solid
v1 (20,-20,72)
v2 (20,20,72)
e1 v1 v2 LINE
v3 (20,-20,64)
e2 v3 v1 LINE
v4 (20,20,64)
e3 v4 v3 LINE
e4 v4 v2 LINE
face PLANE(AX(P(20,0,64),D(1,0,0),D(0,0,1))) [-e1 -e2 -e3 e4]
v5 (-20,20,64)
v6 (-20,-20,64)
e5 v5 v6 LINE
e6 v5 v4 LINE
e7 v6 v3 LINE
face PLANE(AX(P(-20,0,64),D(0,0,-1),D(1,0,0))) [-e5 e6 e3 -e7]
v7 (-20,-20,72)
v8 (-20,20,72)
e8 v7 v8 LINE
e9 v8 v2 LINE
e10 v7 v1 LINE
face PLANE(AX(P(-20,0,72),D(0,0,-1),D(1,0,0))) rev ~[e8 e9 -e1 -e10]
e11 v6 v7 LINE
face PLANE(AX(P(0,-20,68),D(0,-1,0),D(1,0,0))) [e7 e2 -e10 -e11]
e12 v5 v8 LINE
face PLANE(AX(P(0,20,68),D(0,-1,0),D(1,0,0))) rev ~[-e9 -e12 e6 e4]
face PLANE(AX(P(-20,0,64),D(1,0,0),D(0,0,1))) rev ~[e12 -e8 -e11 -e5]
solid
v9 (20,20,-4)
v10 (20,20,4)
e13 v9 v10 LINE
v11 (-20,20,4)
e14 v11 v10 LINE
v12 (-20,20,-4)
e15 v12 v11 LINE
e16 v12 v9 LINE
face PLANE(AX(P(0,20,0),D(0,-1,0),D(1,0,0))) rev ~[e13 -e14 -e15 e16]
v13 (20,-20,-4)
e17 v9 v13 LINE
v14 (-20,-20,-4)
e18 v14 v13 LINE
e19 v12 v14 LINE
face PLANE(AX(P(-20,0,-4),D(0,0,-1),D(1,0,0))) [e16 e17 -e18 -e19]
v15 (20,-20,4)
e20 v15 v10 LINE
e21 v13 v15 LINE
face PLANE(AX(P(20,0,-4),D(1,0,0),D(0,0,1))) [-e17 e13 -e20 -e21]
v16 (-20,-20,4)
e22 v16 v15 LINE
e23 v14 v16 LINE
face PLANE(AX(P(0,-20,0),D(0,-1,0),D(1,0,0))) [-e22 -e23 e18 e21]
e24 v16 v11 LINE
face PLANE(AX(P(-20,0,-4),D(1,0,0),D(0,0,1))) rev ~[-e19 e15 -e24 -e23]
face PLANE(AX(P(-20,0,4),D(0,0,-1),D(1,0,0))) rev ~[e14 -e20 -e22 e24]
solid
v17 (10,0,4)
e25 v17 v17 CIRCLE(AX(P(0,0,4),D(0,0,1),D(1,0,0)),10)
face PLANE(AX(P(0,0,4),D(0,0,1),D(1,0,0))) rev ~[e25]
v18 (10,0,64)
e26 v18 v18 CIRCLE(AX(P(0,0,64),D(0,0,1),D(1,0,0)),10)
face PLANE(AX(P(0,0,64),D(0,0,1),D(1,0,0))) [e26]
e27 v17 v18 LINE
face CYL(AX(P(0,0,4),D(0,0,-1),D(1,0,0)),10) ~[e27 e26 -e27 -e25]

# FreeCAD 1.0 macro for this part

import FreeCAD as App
import Part
import Sketcher
Q = App.Units.Quantity

doc = App.newDocument("Part")
params = doc.addObject("Spreadsheet::Sheet", "Params")
for row, (alias, value) in enumerate([
    ("sketch1_width", "40 mm"),
    ("sketch1_height", "8 mm"),
    ("pad1_length", "40 mm"),
    ("sketch2_width", "40 mm"),
    ("sketch2_height", "8 mm"),
    ("pad2_length", "40 mm"),
    ("sketch3_diameter", "20 mm"),
    ("pad3_length", "60 mm"),
], start=1):
    params.set(f"A{row}", alias)
    params.set(f"B{row}", "=" + value)
    params.setAlias(f"B{row}", alias)

body = doc.addObject("PartDesign::Body", "Body")

sketch1 = body.newObject("Sketcher::SketchObject", "Sketch")
sketch1.AttachmentSupport = (doc.getObject("XZ_Plane"), [""])
sketch1.MapMode = "FlatFace"
sketch1.addGeometry(Part.LineSegment(App.Vector(-20, 4, 0), App.Vector(-20, -4, 0)), False)
sketch1.addGeometry(Part.LineSegment(App.Vector(-20, -4, 0), App.Vector(20, -4, 0)), False)
sketch1.addGeometry(Part.LineSegment(App.Vector(20, -4, 0), App.Vector(20, 4, 0)), False)
sketch1.addGeometry(Part.LineSegment(App.Vector(20, 4, 0), App.Vector(-20, 4, 0)), False)
sketch1.addConstraint(Sketcher.Constraint("Coincident", 0, 2, 1, 1))
sketch1.addConstraint(Sketcher.Constraint("Coincident", 1, 2, 2, 1))
sketch1.addConstraint(Sketcher.Constraint("Coincident", 2, 2, 3, 1))
sketch1.addConstraint(Sketcher.Constraint("Coincident", 3, 2, 0, 1))
sketch1.addConstraint(Sketcher.Constraint("Vertical", 0))
sketch1.addConstraint(Sketcher.Constraint("Horizontal", 1))
sketch1.addConstraint(Sketcher.Constraint("Vertical", 2))
sketch1.addConstraint(Sketcher.Constraint("Horizontal", 3))
sketch1.addConstraint(Sketcher.Constraint("Symmetric", 0, 2, 2, 2, -1, 1))
sketch1.addConstraint(Sketcher.Constraint("DistanceX", 1, 1, 1, 2, Q("40 mm")))
sketch1.addConstraint(Sketcher.Constraint("DistanceY", 0, 2, 0, 1, Q("8 mm")))
sketch1.setExpression("Constraints[9]", "Params.sketch1_width")
sketch1.setExpression("Constraints[10]", "Params.sketch1_height")
pad1 = body.newObject("PartDesign::Pad", "Pad")
pad1.Profile = sketch1
pad1.setExpression("Length", "Params.pad1_length")
pad1.Midplane = True
body2 = doc.addObject("PartDesign::Body", "Body001")

sketch2 = body2.newObject("Sketcher::SketchObject", "Sketch001")
sketch2.AttachmentSupport = (doc.getObject("XZ_Plane001"), [""])
sketch2.MapMode = "FlatFace"
sketch2.addGeometry(Part.LineSegment(App.Vector(-20, 72, 0), App.Vector(-20, 64, 0)), False)
sketch2.addGeometry(Part.LineSegment(App.Vector(-20, 64, 0), App.Vector(20, 64, 0)), False)
sketch2.addGeometry(Part.LineSegment(App.Vector(20, 64, 0), App.Vector(20, 72, 0)), False)
sketch2.addGeometry(Part.LineSegment(App.Vector(20, 72, 0), App.Vector(-20, 72, 0)), False)
sketch2.addConstraint(Sketcher.Constraint("Coincident", 0, 2, 1, 1))
sketch2.addConstraint(Sketcher.Constraint("Coincident", 1, 2, 2, 1))
sketch2.addConstraint(Sketcher.Constraint("Coincident", 2, 2, 3, 1))
sketch2.addConstraint(Sketcher.Constraint("Coincident", 3, 2, 0, 1))
sketch2.addConstraint(Sketcher.Constraint("Vertical", 0))
sketch2.addConstraint(Sketcher.Constraint("Horizontal", 1))
sketch2.addConstraint(Sketcher.Constraint("Vertical", 2))
sketch2.addConstraint(Sketcher.Constraint("Horizontal", 3))
sketch2.addConstraint(Sketcher.Constraint("DistanceX", 1, 1, 1, 2, Q("40 mm")))
sketch2.addConstraint(Sketcher.Constraint("DistanceY", 0, 2, 0, 1, Q("8 mm")))
sketch2.addConstraint(Sketcher.Constraint("DistanceX", 0, 2, -1, 1, Q("20 mm")))
sketch2.addConstraint(Sketcher.Constraint("DistanceY", -1, 1, 0, 2, Q("64 mm")))
sketch2.setExpression("Constraints[8]", "Params.sketch2_width")
sketch2.setExpression("Constraints[9]", "Params.sketch2_height")
pad2 = body2.newObject("PartDesign::Pad", "Pad001")
pad2.Profile = sketch2
pad2.setExpression("Length", "Params.pad2_length")
pad2.Midplane = True
body3 = doc.addObject("PartDesign::Body", "Body002")

sketch3 = body3.newObject("Sketcher::SketchObject", "Sketch002")
sketch3.AttachmentSupport = (doc.getObject("XY_Plane002"), [""])
sketch3.MapMode = "FlatFace"
sketch3.AttachmentOffset = App.Placement(App.Vector(0, 0, 4), App.Rotation())
sketch3.addGeometry(Part.Circle(App.Vector(0, 0, 0), App.Vector(0, 0, 1), 10), False)
sketch3.addConstraint(Sketcher.Constraint("Coincident", 0, 3, -1, 1))
sketch3.addConstraint(Sketcher.Constraint("Diameter", 0, Q("20 mm")))
sketch3.setExpression("Constraints[1]", "Params.sketch3_diameter")
pad3 = body3.newObject("PartDesign::Pad", "Pad002")
pad3.Profile = sketch3
pad3.setExpression("Length", "Params.pad3_length")

doc.recompute()
